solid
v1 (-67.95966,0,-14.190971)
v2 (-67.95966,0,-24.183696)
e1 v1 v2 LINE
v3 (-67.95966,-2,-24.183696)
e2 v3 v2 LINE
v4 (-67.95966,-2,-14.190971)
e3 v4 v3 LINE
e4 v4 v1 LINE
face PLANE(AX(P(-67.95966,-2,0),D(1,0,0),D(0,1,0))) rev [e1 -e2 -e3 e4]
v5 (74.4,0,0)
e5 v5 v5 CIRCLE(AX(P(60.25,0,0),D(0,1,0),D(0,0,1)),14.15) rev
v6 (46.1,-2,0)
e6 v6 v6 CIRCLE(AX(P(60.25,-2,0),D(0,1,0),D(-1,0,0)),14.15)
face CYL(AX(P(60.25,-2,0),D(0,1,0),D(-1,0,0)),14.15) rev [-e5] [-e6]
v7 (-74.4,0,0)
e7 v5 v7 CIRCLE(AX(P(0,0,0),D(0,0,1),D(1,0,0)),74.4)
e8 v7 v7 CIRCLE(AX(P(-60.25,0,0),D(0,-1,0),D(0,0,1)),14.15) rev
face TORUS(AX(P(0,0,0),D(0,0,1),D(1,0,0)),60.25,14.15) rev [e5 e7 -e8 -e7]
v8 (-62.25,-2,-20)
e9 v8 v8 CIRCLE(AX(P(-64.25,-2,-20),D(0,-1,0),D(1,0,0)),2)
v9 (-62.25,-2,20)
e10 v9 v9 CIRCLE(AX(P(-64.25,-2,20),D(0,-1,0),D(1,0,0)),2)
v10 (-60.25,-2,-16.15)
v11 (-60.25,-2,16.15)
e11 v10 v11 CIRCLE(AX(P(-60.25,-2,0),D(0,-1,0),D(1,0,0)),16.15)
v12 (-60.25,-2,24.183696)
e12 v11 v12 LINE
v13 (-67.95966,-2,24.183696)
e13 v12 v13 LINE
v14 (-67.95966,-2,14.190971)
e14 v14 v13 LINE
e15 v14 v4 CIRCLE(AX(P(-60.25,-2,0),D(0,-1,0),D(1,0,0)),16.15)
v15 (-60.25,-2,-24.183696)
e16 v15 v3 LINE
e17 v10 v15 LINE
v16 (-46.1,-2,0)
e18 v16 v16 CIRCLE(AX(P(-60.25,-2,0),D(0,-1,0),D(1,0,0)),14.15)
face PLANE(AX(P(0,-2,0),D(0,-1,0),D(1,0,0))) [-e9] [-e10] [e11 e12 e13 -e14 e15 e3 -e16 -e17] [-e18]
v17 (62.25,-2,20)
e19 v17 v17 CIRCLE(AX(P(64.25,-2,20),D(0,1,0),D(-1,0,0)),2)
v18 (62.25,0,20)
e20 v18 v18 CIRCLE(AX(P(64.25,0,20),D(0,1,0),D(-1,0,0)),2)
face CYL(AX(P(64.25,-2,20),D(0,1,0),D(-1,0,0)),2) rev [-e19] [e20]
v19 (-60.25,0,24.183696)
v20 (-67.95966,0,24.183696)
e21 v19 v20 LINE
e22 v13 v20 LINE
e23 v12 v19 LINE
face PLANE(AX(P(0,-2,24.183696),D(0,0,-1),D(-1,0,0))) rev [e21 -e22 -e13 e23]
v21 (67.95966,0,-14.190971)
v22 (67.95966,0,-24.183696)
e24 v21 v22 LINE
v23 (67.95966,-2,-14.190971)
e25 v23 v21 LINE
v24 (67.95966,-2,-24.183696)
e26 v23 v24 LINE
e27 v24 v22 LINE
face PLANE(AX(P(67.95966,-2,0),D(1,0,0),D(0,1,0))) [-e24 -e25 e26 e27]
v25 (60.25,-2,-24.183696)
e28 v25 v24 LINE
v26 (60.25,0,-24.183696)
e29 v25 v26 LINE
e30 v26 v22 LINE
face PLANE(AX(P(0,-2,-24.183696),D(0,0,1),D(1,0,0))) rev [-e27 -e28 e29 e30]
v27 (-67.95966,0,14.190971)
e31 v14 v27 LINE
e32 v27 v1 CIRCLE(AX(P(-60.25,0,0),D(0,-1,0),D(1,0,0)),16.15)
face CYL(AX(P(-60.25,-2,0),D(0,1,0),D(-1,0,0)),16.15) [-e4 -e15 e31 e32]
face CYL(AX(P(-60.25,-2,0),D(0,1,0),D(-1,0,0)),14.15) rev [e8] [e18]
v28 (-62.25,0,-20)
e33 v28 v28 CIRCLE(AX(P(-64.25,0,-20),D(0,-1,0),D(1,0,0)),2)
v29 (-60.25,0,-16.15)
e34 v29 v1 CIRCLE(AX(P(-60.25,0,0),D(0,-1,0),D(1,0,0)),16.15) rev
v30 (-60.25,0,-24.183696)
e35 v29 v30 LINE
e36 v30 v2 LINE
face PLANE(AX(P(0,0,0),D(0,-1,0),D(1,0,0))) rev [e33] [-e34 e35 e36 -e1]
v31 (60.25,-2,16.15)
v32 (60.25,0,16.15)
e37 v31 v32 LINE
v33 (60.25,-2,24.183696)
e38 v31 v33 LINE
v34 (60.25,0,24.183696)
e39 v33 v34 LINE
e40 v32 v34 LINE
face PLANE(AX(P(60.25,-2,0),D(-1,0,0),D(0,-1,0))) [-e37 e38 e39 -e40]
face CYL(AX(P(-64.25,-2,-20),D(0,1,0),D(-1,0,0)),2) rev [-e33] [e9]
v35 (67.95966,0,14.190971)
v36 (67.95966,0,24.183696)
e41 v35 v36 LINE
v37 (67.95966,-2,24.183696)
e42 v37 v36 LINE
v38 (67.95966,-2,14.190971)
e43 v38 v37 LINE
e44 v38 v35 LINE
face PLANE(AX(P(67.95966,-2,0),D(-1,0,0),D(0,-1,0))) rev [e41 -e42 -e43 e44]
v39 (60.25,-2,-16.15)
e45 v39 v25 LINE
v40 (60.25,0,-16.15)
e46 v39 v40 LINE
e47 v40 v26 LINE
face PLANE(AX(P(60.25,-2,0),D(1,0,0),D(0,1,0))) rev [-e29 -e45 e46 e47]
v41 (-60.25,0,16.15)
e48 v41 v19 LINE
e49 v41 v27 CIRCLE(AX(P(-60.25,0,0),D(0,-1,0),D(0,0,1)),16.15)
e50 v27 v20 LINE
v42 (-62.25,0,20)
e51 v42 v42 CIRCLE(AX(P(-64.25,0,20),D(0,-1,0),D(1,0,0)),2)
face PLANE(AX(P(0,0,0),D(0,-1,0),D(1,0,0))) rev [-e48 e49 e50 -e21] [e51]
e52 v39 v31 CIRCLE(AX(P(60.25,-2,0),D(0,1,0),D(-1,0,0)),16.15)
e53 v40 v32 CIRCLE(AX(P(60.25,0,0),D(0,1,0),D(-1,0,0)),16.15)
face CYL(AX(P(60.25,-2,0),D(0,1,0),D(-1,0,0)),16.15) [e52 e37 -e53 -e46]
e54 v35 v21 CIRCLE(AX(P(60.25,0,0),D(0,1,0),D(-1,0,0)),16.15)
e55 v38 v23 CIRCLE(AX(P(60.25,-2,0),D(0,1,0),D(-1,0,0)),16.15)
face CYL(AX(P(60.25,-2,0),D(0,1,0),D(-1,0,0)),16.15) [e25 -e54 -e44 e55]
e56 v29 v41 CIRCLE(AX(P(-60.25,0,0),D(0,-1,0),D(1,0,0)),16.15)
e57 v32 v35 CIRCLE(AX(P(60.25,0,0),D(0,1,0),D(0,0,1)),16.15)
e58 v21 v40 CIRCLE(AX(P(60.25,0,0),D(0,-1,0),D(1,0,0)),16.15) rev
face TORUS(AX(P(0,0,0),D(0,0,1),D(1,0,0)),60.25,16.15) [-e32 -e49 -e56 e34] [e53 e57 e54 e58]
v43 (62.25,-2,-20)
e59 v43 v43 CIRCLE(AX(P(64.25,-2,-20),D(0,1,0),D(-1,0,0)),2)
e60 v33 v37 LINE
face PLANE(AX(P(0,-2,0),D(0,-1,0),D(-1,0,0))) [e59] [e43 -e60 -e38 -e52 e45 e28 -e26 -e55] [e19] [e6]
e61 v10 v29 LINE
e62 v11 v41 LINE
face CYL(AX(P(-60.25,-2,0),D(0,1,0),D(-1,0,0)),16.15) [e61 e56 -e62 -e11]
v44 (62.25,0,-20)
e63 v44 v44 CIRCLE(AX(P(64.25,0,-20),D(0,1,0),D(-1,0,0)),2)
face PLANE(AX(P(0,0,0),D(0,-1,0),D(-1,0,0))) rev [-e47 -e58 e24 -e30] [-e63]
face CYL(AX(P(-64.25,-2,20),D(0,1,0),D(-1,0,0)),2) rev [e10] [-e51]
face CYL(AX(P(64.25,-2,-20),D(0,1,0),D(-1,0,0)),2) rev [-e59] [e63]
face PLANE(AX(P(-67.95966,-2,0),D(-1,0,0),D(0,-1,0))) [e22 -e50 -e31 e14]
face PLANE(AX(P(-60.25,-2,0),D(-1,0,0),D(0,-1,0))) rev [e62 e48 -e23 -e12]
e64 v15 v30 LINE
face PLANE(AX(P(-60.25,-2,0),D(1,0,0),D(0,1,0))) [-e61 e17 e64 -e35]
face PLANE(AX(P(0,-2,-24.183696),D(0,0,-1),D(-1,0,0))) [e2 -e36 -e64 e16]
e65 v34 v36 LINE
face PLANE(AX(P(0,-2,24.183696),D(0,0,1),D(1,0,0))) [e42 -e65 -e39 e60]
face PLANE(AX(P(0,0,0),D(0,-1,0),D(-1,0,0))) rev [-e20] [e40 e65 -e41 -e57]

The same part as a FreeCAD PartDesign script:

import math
import FreeCAD as App
import Part
import Sketcher

doc = App.newDocument("Part")
body = doc.addObject("PartDesign::Body", "Body")

# Sketch on XZ plane
sketch1 = doc.addObject("Sketcher::SketchObject", "Sketch")
body.addObject(sketch1)
sketch1.AttachmentSupport = (doc.XZ_Plane, [""])
sketch1.MapMode = "FlatFace"
sketch1.addGeometry(Part.Circle(App.Vector(60.25, 0, 0), App.Vector(0, 0, 1), 16.15), False)
sketch1.addGeometry(Part.Circle(App.Vector(60.25, 0, 0), App.Vector(0, 0, 1), 14.15), False)
sketch1.addConstraint(Sketcher.Constraint("Coincident", 1, 3, 0, 3))
sketch1.addConstraint(Sketcher.Constraint("PointOnObject", 0, 3, -1))
sketch1.addConstraint(Sketcher.Constraint("Diameter", 0, 32.3))
sketch1.addConstraint(Sketcher.Constraint("Diameter", 1, 28.3))
sketch1.addConstraint(Sketcher.Constraint("DistanceX", -1, 1, 0, 3, 60.25))

# Sketch on XY plane
sketch2 = doc.addObject("Sketcher::SketchObject", "Sketch001")
body.addObject(sketch2)
sketch2.AttachmentSupport = (doc.XY_Plane, [""])
sketch2.MapMode = "FlatFace"
sketch2.addGeometry(Part.ArcOfCircle(Part.Circle(App.Vector(0, 0, 0), App.Vector(0, 0, 1), 60.25), math.radians(0), math.radians(180)), False)
sketch2.addConstraint(Sketcher.Constraint("Coincident", 0, 3, -1, 1))
sketch2.addConstraint(Sketcher.Constraint("PointOnObject", 0, 1, -1))
sketch2.addConstraint(Sketcher.Constraint("PointOnObject", 0, 2, -1))
sketch2.addConstraint(Sketcher.Constraint("Radius", 0, 60.25))
doc.recompute()

additivepipe = doc.addObject("PartDesign::AdditivePipe", "AdditivePipe")
body.addObject(additivepipe)
additivepipe.Profile = sketch1
additivepipe.Spine = (sketch2, ["Edge1"])

# Sketch on XZ plane
sketch3 = doc.addObject("Sketcher::SketchObject", "Sketch002")
body.addObject(sketch3)
sketch3.AttachmentSupport = (doc.XZ_Plane, [""])
sketch3.MapMode = "FlatFace"
sketch3.addGeometry(Part.LineSegment(App.Vector(-60.25, 16.15, 0), App.Vector(-60.25, 24.183696, 0)), False)
sketch3.addGeometry(Part.LineSegment(App.Vector(-60.25, 24.183696, 0), App.Vector(-67.95966, 24.183696, 0)), False)
sketch3.addGeometry(Part.LineSegment(App.Vector(-67.95966, 24.183696, 0), App.Vector(-67.95966, 14.190971, 0)), False)
sketch3.addGeometry(Part.ArcOfCircle(Part.Circle(App.Vector(-60.25, 0, 0), App.Vector(0, 0, 1), 16.15), math.radians(118.514314), math.radians(241.485686)), False)
sketch3.addGeometry(Part.LineSegment(App.Vector(-67.95966, -14.190971, 0), App.Vector(-67.95966, -24.183696, 0)), False)
sketch3.addGeometry(Part.LineSegment(App.Vector(-67.95966, -24.183696, 0), App.Vector(-60.25, -24.183696, 0)), False)
sketch3.addGeometry(Part.LineSegment(App.Vector(-60.25, -24.183696, 0), App.Vector(-60.25, -16.15, 0)), False)
sketch3.addGeometry(Part.ArcOfCircle(Part.Circle(App.Vector(-60.25, 0, 0), App.Vector(0, 0, 1), 16.15), math.radians(-90), math.radians(90)), False)
sketch3.addGeometry(Part.Circle(App.Vector(-64.25, 20, 0), App.Vector(0, 0, 1), 2), False)
sketch3.addGeometry(Part.Circle(App.Vector(-60.25, 0, 0), App.Vector(0, 0, 1), 14.15), False)
sketch3.addGeometry(Part.Circle(App.Vector(-64.25, -20, 0), App.Vector(0, 0, 1), 2), False)
sketch3.addConstraint(Sketcher.Constraint("Coincident", 0, 2, 1, 1))
sketch3.addConstraint(Sketcher.Constraint("Coincident", 1, 2, 2, 1))
sketch3.addConstraint(Sketcher.Constraint("Coincident", 2, 2, 3, 1))
sketch3.addConstraint(Sketcher.Constraint("Coincident", 3, 2, 4, 1))
sketch3.addConstraint(Sketcher.Constraint("Coincident", 4, 2, 5, 1))
sketch3.addConstraint(Sketcher.Constraint("Coincident", 5, 2, 6, 1))
sketch3.addConstraint(Sketcher.Constraint("Coincident", 6, 2, 7, 1))
sketch3.addConstraint(Sketcher.Constraint("Coincident", 7, 2, 0, 1))
sketch3.addConstraint(Sketcher.Constraint("Vertical", 0))
sketch3.addConstraint(Sketcher.Constraint("Horizontal", 1))
sketch3.addConstraint(Sketcher.Constraint("Vertical", 2))
sketch3.addConstraint(Sketcher.Constraint("Vertical", 4))
sketch3.addConstraint(Sketcher.Constraint("Horizontal", 5))
sketch3.addConstraint(Sketcher.Constraint("Vertical", 6))
sketch3.addConstraint(Sketcher.Constraint("Coincident", 7, 3, 3, 3))
sketch3.addConstraint(Sketcher.Constraint("Coincident", 9, 3, 3, 3))
sketch3.addConstraint(Sketcher.Constraint("Equal", 3, 7))
sketch3.addConstraint(Sketcher.Constraint("Equal", 8, 10))
sketch3.addConstraint(Sketcher.Constraint("Symmetric", 8, 3, 10, 3, -1))
sketch3.addConstraint(Sketcher.Constraint("Symmetric", 2, 2, 3, 2, -1))
sketch3.addConstraint(Sketcher.Constraint("Symmetric", 0, 2, 5, 2, -1))
sketch3.addConstraint(Sketcher.Constraint("Vertical", 9, 3, 0, 2))
sketch3.addConstraint(Sketcher.Constraint("Diameter", 8, 4.0))
sketch3.addConstraint(Sketcher.Constraint("Diameter", 9, 28.3))
sketch3.addConstraint(Sketcher.Constraint("Radius", 3, 16.15))
sketch3.addConstraint(Sketcher.Constraint("DistanceY", -1, 1, 8, 3, 20.0))
sketch3.addConstraint(Sketcher.Constraint("DistanceX", 8, 3, 3, 3, 4.0))
sketch3.addConstraint(Sketcher.Constraint("DistanceX", 3, 3, -1, 1, 60.25))
sketch3.addConstraint(Sketcher.Constraint("DistanceX", 1, 2, 1, 1, 7.70966))
sketch3.addConstraint(Sketcher.Constraint("DistanceY", 0, 1, 0, 2, 8.033696))
pad1 = doc.addObject("PartDesign::Pad", "Pad")
body.addObject(pad1)
pad1.Profile = sketch3
pad1.Length = 2
doc.recompute()

mirrored = doc.addObject("PartDesign::Mirrored", "Mirrored")
body.addObject(mirrored)
mirrored.Originals = [pad1]
mirrored.MirrorPlane = (doc.YZ_Plane, [""])
body.Tip = mirrored

doc.recompute()
